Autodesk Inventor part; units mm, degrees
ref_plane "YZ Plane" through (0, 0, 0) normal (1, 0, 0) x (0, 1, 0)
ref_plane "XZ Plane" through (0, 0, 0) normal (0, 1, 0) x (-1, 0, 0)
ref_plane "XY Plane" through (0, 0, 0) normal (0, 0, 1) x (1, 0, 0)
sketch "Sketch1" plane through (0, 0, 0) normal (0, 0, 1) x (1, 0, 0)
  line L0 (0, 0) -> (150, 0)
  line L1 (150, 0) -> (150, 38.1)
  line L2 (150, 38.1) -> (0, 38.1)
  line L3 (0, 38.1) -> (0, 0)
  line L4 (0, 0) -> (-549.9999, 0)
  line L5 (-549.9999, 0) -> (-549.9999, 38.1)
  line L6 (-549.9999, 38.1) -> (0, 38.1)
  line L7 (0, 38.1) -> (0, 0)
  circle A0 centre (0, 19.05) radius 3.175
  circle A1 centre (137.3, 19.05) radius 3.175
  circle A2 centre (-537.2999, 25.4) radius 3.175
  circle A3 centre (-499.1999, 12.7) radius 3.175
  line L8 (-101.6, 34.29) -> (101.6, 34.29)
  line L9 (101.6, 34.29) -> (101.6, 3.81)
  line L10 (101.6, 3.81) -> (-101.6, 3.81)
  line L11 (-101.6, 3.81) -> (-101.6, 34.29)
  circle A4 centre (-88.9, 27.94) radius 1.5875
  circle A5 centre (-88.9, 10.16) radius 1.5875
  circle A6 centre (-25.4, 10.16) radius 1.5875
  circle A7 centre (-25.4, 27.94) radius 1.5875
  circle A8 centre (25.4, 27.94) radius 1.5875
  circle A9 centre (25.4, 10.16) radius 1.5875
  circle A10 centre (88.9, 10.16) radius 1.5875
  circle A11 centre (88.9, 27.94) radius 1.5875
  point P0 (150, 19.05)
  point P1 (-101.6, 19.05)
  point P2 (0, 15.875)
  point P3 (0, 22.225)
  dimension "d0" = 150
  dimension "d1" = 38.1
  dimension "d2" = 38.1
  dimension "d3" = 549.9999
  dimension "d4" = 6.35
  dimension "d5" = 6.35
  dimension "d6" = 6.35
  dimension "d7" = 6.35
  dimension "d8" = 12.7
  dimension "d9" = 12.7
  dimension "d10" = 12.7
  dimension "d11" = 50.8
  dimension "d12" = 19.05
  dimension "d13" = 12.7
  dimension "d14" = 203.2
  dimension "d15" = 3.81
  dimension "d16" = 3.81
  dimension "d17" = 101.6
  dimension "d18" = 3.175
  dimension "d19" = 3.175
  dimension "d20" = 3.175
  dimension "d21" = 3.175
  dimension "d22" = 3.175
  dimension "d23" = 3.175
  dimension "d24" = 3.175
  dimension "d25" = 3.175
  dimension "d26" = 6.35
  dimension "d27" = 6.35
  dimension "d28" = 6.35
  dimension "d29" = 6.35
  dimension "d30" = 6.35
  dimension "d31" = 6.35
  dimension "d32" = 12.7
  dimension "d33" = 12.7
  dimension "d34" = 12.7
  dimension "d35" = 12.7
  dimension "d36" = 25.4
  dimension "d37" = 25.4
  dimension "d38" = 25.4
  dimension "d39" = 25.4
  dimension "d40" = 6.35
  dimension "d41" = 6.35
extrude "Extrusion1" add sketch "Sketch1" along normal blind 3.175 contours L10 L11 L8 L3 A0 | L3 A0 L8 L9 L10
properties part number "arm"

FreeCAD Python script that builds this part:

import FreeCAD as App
import Part
import Sketcher

V = App.Vector
Q = App.Units.Quantity

doc = App.newDocument("Part")
body = doc.addObject("PartDesign::Body", "Body")

# Sketch on XY plane
sketch1 = doc.addObject("Sketcher::SketchObject", "Sketch")
body.addObject(sketch1)
sketch1.AttachmentSupport = (doc.XY_Plane, [""])
sketch1.MapMode = "FlatFace"
sketch1.addGeometry([
    Part.LineSegment(V(-101.6, 3.8, 0), V(101.6, 3.8, 0)),  # 0
    Part.LineSegment(V(101.6, 3.8, 0), V(101.6, 34.3, 0)),  # 1
    Part.LineSegment(V(101.6, 34.3, 0), V(-101.6, 34.3, 0)),  # 2
    Part.LineSegment(V(-101.6, 34.3, 0), V(-101.6, 3.8, 0)),  # 3
    Part.Circle(V(0, 19.1, 0), V(0, 0, 1), 3.2),  # 4
    Part.Circle(V(-88.9, 10.2, 0), V(0, 0, 1), 1.6),  # 5
    Part.Circle(V(-25.4, 10.2, 0), V(0, 0, 1), 1.6),  # 6
    Part.Circle(V(-88.9, 27.9, 0), V(0, 0, 1), 1.6),  # 7
    Part.Circle(V(-25.4, 27.9, 0), V(0, 0, 1), 1.6),  # 8
    Part.Circle(V(25.4, 27.9, 0), V(0, 0, 1), 1.6),  # 9
    Part.Circle(V(88.9, 27.9, 0), V(0, 0, 1), 1.6),  # 10
    Part.Circle(V(25.4, 10.2, 0), V(0, 0, 1), 1.6),  # 11
    Part.Circle(V(88.9, 10.2, 0), V(0, 0, 1), 1.6),  # 12
], False)
sketch1.addConstraint([
    Sketcher.Constraint("Coincident", 0, 2, 1, 1),
    Sketcher.Constraint("Coincident", 1, 2, 2, 1),
    Sketcher.Constraint("Coincident", 2, 2, 3, 1),
    Sketcher.Constraint("Coincident", 3, 2, 0, 1),
    Sketcher.Constraint("Horizontal", 0),
    Sketcher.Constraint("Vertical", 1),
    Sketcher.Constraint("Horizontal", 2),
    Sketcher.Constraint("Vertical", 3),
    Sketcher.Constraint("Equal", 5, 6),
    Sketcher.Constraint("Equal", 6, 7),
    Sketcher.Constraint("Equal", 7, 8),
    Sketcher.Constraint("Equal", 8, 9),
    Sketcher.Constraint("Equal", 9, 10),
    Sketcher.Constraint("Equal", 10, 11),
    Sketcher.Constraint("Equal", 11, 12),
    Sketcher.Constraint("Symmetric", 8, 3, 9, 3, -2),
    Sketcher.Constraint("Symmetric", 7, 3, 10, 3, -2),
    Sketcher.Constraint("Symmetric", 6, 3, 11, 3, -2),
    Sketcher.Constraint("Symmetric", 5, 3, 12, 3, -2),
    Sketcher.Constraint("PointOnObject", 4, 3, -2),
    Sketcher.Constraint("Horizontal", 5, 3, 6, 3),
    Sketcher.Constraint("Horizontal", 7, 3, 8, 3),
    Sketcher.Constraint("Vertical", 5, 3, 7, 3),
    Sketcher.Constraint("Vertical", 6, 3, 8, 3),
    Sketcher.Constraint("Diameter", 4, Q("0.25 in")),
    Sketcher.Constraint("DistanceX", 0, 1, 0, 2, Q("8 in")),
    Sketcher.Constraint("Diameter", 5, Q("0.125 in")),
    Sketcher.Constraint("DistanceX", 6, 3, -1, 1, Q("1 in")),
    Sketcher.Constraint("DistanceX", -1, 1, 0, 2, Q("4 in")),
    Sketcher.Constraint("DistanceX", 12, 3, 0, 2, Q("0.5 in")),
    Sketcher.Constraint("DistanceY", -1, 1, 4, 3, Q("0.75 in")),
    Sketcher.Constraint("DistanceY", -1, 1, 0, 2, Q("0.15 in")),
    Sketcher.Constraint("DistanceY", 0, 2, 12, 3, Q("0.25 in")),
    Sketcher.Constraint("DistanceY", 10, 3, 1, 2, Q("0.25 in")),
    Sketcher.Constraint("DistanceY", 1, 1, 1, 2, Q("1.2 in")),
])
pad1 = doc.addObject("PartDesign::Pad", "Pad")
body.addObject(pad1)
pad1.Profile = sketch1
pad1.Length = Q("0.125 in")

doc.recompute()
